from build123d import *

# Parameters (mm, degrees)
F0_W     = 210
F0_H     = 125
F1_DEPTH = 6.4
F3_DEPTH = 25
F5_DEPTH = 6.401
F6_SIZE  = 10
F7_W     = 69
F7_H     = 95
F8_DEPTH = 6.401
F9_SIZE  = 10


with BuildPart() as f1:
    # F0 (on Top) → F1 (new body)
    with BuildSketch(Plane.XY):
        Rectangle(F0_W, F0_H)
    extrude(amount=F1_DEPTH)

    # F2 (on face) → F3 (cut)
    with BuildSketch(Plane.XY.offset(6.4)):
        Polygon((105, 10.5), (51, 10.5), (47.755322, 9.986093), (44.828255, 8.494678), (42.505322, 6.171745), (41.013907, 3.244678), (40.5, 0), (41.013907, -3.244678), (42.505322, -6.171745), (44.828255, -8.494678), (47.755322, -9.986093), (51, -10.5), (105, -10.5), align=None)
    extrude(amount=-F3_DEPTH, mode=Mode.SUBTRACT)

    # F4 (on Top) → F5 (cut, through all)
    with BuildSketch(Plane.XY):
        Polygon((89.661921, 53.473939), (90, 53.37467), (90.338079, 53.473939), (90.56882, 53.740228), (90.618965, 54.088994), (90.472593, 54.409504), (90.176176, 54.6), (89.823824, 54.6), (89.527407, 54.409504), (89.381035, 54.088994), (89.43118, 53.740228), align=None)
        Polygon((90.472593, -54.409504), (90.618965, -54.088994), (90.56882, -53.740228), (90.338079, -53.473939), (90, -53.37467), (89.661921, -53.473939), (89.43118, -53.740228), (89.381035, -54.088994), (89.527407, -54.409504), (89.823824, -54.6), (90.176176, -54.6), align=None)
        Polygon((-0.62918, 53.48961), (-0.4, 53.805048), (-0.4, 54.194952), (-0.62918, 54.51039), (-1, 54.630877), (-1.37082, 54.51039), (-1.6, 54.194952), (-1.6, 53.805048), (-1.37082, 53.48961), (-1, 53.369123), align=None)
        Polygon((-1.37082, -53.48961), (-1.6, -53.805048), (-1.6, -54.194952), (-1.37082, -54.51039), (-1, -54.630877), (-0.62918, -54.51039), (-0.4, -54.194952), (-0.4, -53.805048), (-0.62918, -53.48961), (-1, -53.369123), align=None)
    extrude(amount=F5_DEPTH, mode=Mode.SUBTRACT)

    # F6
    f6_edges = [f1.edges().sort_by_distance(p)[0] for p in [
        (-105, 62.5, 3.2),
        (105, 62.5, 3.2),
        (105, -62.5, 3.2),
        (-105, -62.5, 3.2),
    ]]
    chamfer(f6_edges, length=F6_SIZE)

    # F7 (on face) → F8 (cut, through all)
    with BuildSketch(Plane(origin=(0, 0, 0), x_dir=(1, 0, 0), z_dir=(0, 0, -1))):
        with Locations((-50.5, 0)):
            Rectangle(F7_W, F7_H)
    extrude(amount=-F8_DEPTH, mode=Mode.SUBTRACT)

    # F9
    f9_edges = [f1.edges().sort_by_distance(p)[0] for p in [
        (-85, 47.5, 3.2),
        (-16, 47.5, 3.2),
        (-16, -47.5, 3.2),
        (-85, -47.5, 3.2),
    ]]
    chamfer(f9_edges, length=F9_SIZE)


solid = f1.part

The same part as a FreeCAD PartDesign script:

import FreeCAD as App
import Part
import Sketcher

V = App.Vector
Q = App.Units.Quantity


def edges_at(feature, points):
    """Names of the edges that pass closest to the given points."""
    edges = feature.Shape.Edges
    near = lambda p: min(range(len(edges)), key=lambda i: edges[i].distToShape(Part.Vertex(*p))[0])
    return sorted({f"Edge{near(p) + 1}" for p in points})

doc = App.newDocument("Part")
body = doc.addObject("PartDesign::Body", "Body")

# Sketch on XY plane
sketch1 = body.newObject("Sketcher::SketchObject", "Sketch")
sketch1.AttachmentSupport = (doc.getObject("XY_Plane"), [""])
sketch1.MapMode = "FlatFace"
sketch1.addGeometry(Part.LineSegment(V(-105, 62, 0), V(-105, -62, 0)), False)
sketch1.addGeometry(Part.LineSegment(V(-105, -62, 0), V(105, -62, 0)), False)
sketch1.addGeometry(Part.LineSegment(V(105, -62, 0), V(105, 62, 0)), False)
sketch1.addGeometry(Part.LineSegment(V(105, 62, 0), V(-105, 62, 0)), False)
sketch1.addConstraint(Sketcher.Constraint("Coincident", 0, 2, 1, 1))
sketch1.addConstraint(Sketcher.Constraint("Coincident", 1, 2, 2, 1))
sketch1.addConstraint(Sketcher.Constraint("Coincident", 2, 2, 3, 1))
sketch1.addConstraint(Sketcher.Constraint("Coincident", 3, 2, 0, 1))
sketch1.addConstraint(Sketcher.Constraint("Vertical", 0))
sketch1.addConstraint(Sketcher.Constraint("Horizontal", 1))
sketch1.addConstraint(Sketcher.Constraint("Vertical", 2))
sketch1.addConstraint(Sketcher.Constraint("Horizontal", 3))
sketch1.addConstraint(Sketcher.Constraint("Symmetric", 0, 2, 2, 2, -1, 1))
sketch1.addConstraint(Sketcher.Constraint("DistanceX", 1, 1, 1, 2, 210.0))
sketch1.addConstraint(Sketcher.Constraint("DistanceY", 0, 2, 0, 1, 125.0))
pad1 = body.newObject("PartDesign::Pad", "Pad")
pad1.Profile = sketch1
pad1.Length = 6.4

# Sketch on XY plane
sketch2 = body.newObject("Sketcher::SketchObject", "Sketch001")
sketch2.AttachmentSupport = (doc.getObject("XY_Plane"), [""])
sketch2.MapMode = "FlatFace"
sketch2.AttachmentOffset = App.Placement(V(0, 0, 6.4), App.Rotation())
sketch2.addGeometry(Part.LineSegment(V(105, 10.5, 0), V(51, 10.5, 0)), False)
sketch2.addGeometry(Part.LineSegment(V(51, 10.5, 0), V(47.8, 10, 0)), False)
sketch2.addGeometry(Part.LineSegment(V(47.8, 10, 0), V(44.8, 8.5, 0)), False)
sketch2.addGeometry(Part.LineSegment(V(44.8, 8.5, 0), V(42.5, 6.2, 0)), False)
sketch2.addGeometry(Part.LineSegment(V(42.5, 6.2, 0), V(41, 3.2, 0)), False)
sketch2.addGeometry(Part.LineSegment(V(41, 3.2, 0), V(40.5, 0, 0)), False)
sketch2.addGeometry(Part.LineSegment(V(40.5, 0, 0), V(41, -3.2, 0)), False)
sketch2.addGeometry(Part.LineSegment(V(41, -3.2, 0), V(42.5, -6.2, 0)), False)
sketch2.addGeometry(Part.LineSegment(V(42.5, -6.2, 0), V(44.8, -8.5, 0)), False)
sketch2.addGeometry(Part.LineSegment(V(44.8, -8.5, 0), V(47.8, -10, 0)), False)
sketch2.addGeometry(Part.LineSegment(V(47.8, -10, 0), V(51, -10.5, 0)), False)
sketch2.addGeometry(Part.LineSegment(V(51, -10.5, 0), V(105, -10.5, 0)), False)
sketch2.addGeometry(Part.LineSegment(V(105, -10.5, 0), V(105, 10.5, 0)), False)
sketch2.addConstraint(Sketcher.Constraint("Coincident", 0, 2, 1, 1))
sketch2.addConstraint(Sketcher.Constraint("Coincident", 1, 2, 2, 1))
sketch2.addConstraint(Sketcher.Constraint("Coincident", 2, 2, 3, 1))
sketch2.addConstraint(Sketcher.Constraint("Coincident", 3, 2, 4, 1))
sketch2.addConstraint(Sketcher.Constraint("Coincident", 4, 2, 5, 1))
sketch2.addConstraint(Sketcher.Constraint("Coincident", 5, 2, 6, 1))
sketch2.addConstraint(Sketcher.Constraint("Coincident", 6, 2, 7, 1))
sketch2.addConstraint(Sketcher.Constraint("Coincident", 7, 2, 8, 1))
sketch2.addConstraint(Sketcher.Constraint("Coincident", 8, 2, 9, 1))
sketch2.addConstraint(Sketcher.Constraint("Coincident", 9, 2, 10, 1))
sketch2.addConstraint(Sketcher.Constraint("Coincident", 10, 2, 11, 1))
sketch2.addConstraint(Sketcher.Constraint("Coincident", 11, 2, 12, 1))
sketch2.addConstraint(Sketcher.Constraint("Coincident", 12, 2, 0, 1))
sketch2.addConstraint(Sketcher.Constraint("Horizontal", 0))
sketch2.addConstraint(Sketcher.Constraint("Horizontal", 11))
sketch2.addConstraint(Sketcher.Constraint("Vertical", 12))
sketch2.addConstraint(Sketcher.Constraint("Symmetric", 4, 2, 6, 2, -1))
sketch2.addConstraint(Sketcher.Constraint("Symmetric", 3, 2, 7, 2, -1))
sketch2.addConstraint(Sketcher.Constraint("Symmetric", 2, 2, 8, 2, -1))
sketch2.addConstraint(Sketcher.Constraint("Symmetric", 1, 2, 9, 2, -1))
sketch2.addConstraint(Sketcher.Constraint("Symmetric", 0, 2, 10, 2, -1))
sketch2.addConstraint(Sketcher.Constraint("PointOnObject", 5, 2, -1))
sketch2.addConstraint(Sketcher.Constraint("Perpendicular", 1, 6))
sketch2.addConstraint(Sketcher.Constraint("Perpendicular", 2, 7))
sketch2.addConstraint(Sketcher.Constraint("Perpendicular", 3, 8))
sketch2.addConstraint(Sketcher.Constraint("Equal", 1, 2))
sketch2.addConstraint(Sketcher.Constraint("Equal", 2, 3))
sketch2.addConstraint(Sketcher.Constraint("Equal", 3, 4))
sketch2.addConstraint(Sketcher.Constraint("Equal", 4, 5))
sketch2.addConstraint(Sketcher.Constraint("DistanceX", 0, 2, 0, 1, 54.0))
sketch2.addConstraint(Sketcher.Constraint("DistanceY", 12, 1, 12, 2, 21.0))
sketch2.addConstraint(Sketcher.Constraint("Angle", 1, Q("-170.999992 deg")))
sketch2.addConstraint(Sketcher.Constraint("Angle", 2, Q("-153.000002 deg")))
sketch2.addConstraint(Sketcher.Constraint("DistanceX", -1, 1, 0, 2, 51.0))
pocket1 = body.newObject("PartDesign::Pocket", "Pocket")
pocket1.Profile = sketch2
pocket1.Length = 25

# Sketch on XY plane
sketch3 = body.newObject("Sketcher::SketchObject", "Sketch002")
sketch3.AttachmentSupport = (doc.getObject("XY_Plane"), [""])
sketch3.MapMode = "FlatFace"
sketch3.addGeometry(Part.LineSegment(V(89.66, 53.47, 0), V(90, 53.37, 0)), False)
sketch3.addGeometry(Part.LineSegment(V(90, 53.37, 0), V(90.34, 53.47, 0)), False)
sketch3.addGeometry(Part.LineSegment(V(90.34, 53.47, 0), V(90.57, 53.74, 0)), False)
sketch3.addGeometry(Part.LineSegment(V(90.57, 53.74, 0), V(90.62, 54.09, 0)), False)
sketch3.addGeometry(Part.LineSegment(V(90.62, 54.09, 0), V(90.47, 54.41, 0)), False)
sketch3.addGeometry(Part.LineSegment(V(90.47, 54.41, 0), V(90.18, 54.6, 0)), False)
sketch3.addGeometry(Part.LineSegment(V(90.18, 54.6, 0), V(89.82, 54.6, 0)), False)
sketch3.addGeometry(Part.LineSegment(V(89.82, 54.6, 0), V(89.53, 54.41, 0)), False)
sketch3.addGeometry(Part.LineSegment(V(89.53, 54.41, 0), V(89.38, 54.09, 0)), False)
sketch3.addGeometry(Part.LineSegment(V(89.38, 54.09, 0), V(89.43, 53.74, 0)), False)
sketch3.addGeometry(Part.LineSegment(V(89.43, 53.74, 0), V(89.66, 53.47, 0)), False)
sketch3.addGeometry(Part.LineSegment(V(90.47, -54.41, 0), V(90.62, -54.09, 0)), False)
sketch3.addGeometry(Part.LineSegment(V(90.62, -54.09, 0), V(90.57, -53.74, 0)), False)
sketch3.addGeometry(Part.LineSegment(V(90.57, -53.74, 0), V(90.34, -53.47, 0)), False)
sketch3.addGeometry(Part.LineSegment(V(90.34, -53.47, 0), V(90, -53.37, 0)), False)
sketch3.addGeometry(Part.LineSegment(V(90, -53.37, 0), V(89.66, -53.47, 0)), False)
sketch3.addGeometry(Part.LineSegment(V(89.66, -53.47, 0), V(89.43, -53.74, 0)), False)
sketch3.addGeometry(Part.LineSegment(V(89.43, -53.74, 0), V(89.38, -54.09, 0)), False)
sketch3.addGeometry(Part.LineSegment(V(89.38, -54.09, 0), V(89.53, -54.41, 0)), False)
sketch3.addGeometry(Part.LineSegment(V(89.53, -54.41, 0), V(89.82, -54.6, 0)), False)
sketch3.addGeometry(Part.LineSegment(V(89.82, -54.6, 0), V(90.18, -54.6, 0)), False)
sketch3.addGeometry(Part.LineSegment(V(90.18, -54.6, 0), V(90.47, -54.41, 0)), False)
sketch3.addGeometry(Part.LineSegment(V(-0.63, 53.49, 0), V(-0.4, 53.81, 0)), False)
sketch3.addGeometry(Part.LineSegment(V(-0.4, 53.81, 0), V(-0.4, 54.19, 0)), False)
sketch3.addGeometry(Part.LineSegment(V(-0.4, 54.19, 0), V(-0.63, 54.51, 0)), False)
sketch3.addGeometry(Part.LineSegment(V(-0.63, 54.51, 0), V(-1, 54.63, 0)), False)
sketch3.addGeometry(Part.LineSegment(V(-1, 54.63, 0), V(-1.37, 54.51, 0)), False)
sketch3.addGeometry(Part.LineSegment(V(-1.37, 54.51, 0), V(-1.6, 54.19, 0)), False)
sketch3.addGeometry(Part.LineSegment(V(-1.6, 54.19, 0), V(-1.6, 53.81, 0)), False)
sketch3.addGeometry(Part.LineSegment(V(-1.6, 53.81, 0), V(-1.37, 53.49, 0)), False)
sketch3.addGeometry(Part.LineSegment(V(-1.37, 53.49, 0), V(-1, 53.37, 0)), False)
sketch3.addGeometry(Part.LineSegment(V(-1, 53.37, 0), V(-0.63, 53.49, 0)), False)
sketch3.addGeometry(Part.LineSegment(V(-1.37, -53.49, 0), V(-1.6, -53.81, 0)), False)
sketch3.addGeometry(Part.LineSegment(V(-1.6, -53.81, 0), V(-1.6, -54.19, 0)), False)
sketch3.addGeometry(Part.LineSegment(V(-1.6, -54.19, 0), V(-1.37, -54.51, 0)), False)
sketch3.addGeometry(Part.LineSegment(V(-1.37, -54.51, 0), V(-1, -54.63, 0)), False)
sketch3.addGeometry(Part.LineSegment(V(-1, -54.63, 0), V(-0.63, -54.51, 0)), False)
sketch3.addGeometry(Part.LineSegment(V(-0.63, -54.51, 0), V(-0.4, -54.19, 0)), False)
sketch3.addGeometry(Part.LineSegment(V(-0.4, -54.19, 0), V(-0.4, -53.81, 0)), False)
sketch3.addGeometry(Part.LineSegment(V(-0.4, -53.81, 0), V(-0.63, -53.49, 0)), False)
sketch3.addGeometry(Part.LineSegment(V(-0.63, -53.49, 0), V(-1, -53.37, 0)), False)
sketch3.addGeometry(Part.LineSegment(V(-1, -53.37, 0), V(-1.37, -53.49, 0)), False)
sketch3.addConstraint(Sketcher.Constraint("Coincident", 0, 2, 1, 1))
sketch3.addConstraint(Sketcher.Constraint("Coincident", 1, 2, 2, 1))
sketch3.addConstraint(Sketcher.Constraint("Coincident", 2, 2, 3, 1))
sketch3.addConstraint(Sketcher.Constraint("Coincident", 3, 2, 4, 1))
sketch3.addConstraint(Sketcher.Constraint("Coincident", 4, 2, 5, 1))
sketch3.addConstraint(Sketcher.Constraint("Coincident", 5, 2, 6, 1))
sketch3.addConstraint(Sketcher.Constraint("Coincident", 6, 2, 7, 1))
sketch3.addConstraint(Sketcher.Constraint("Coincident", 7, 2, 8, 1))
sketch3.addConstraint(Sketcher.Constraint("Coincident", 8, 2, 9, 1))
sketch3.addConstraint(Sketcher.Constraint("Coincident", 9, 2, 10, 1))
sketch3.addConstraint(Sketcher.Constraint("Coincident", 10, 2, 0, 1))
sketch3.addConstraint(Sketcher.Constraint("Coincident", 11, 2, 12, 1))
sketch3.addConstraint(Sketcher.Constraint("Coincident", 12, 2, 13, 1))
sketch3.addConstraint(Sketcher.Constraint("Coincident", 13, 2, 14, 1))
sketch3.addConstraint(Sketcher.Constraint("Coincident", 14, 2, 15, 1))
sketch3.addConstraint(Sketcher.Constraint("Coincident", 15, 2, 16, 1))
sketch3.addConstraint(Sketcher.Constraint("Coincident", 16, 2, 17, 1))
sketch3.addConstraint(Sketcher.Constraint("Coincident", 17, 2, 18, 1))
sketch3.addConstraint(Sketcher.Constraint("Coincident", 18, 2, 19, 1))
sketch3.addConstraint(Sketcher.Constraint("Coincident", 19, 2, 20, 1))
sketch3.addConstraint(Sketcher.Constraint("Coincident", 20, 2, 21, 1))
sketch3.addConstraint(Sketcher.Constraint("Coincident", 21, 2, 11, 1))
sketch3.addConstraint(Sketcher.Constraint("Coincident", 22, 2, 23, 1))
sketch3.addConstraint(Sketcher.Constraint("Coincident", 23, 2, 24, 1))
sketch3.addConstraint(Sketcher.Constraint("Coincident", 24, 2, 25, 1))
sketch3.addConstraint(Sketcher.Constraint("Coincident", 25, 2, 26, 1))
sketch3.addConstraint(Sketcher.Constraint("Coincident", 26, 2, 27, 1))
sketch3.addConstraint(Sketcher.Constraint("Coincident", 27, 2, 28, 1))
sketch3.addConstraint(Sketcher.Constraint("Coincident", 28, 2, 29, 1))
sketch3.addConstraint(Sketcher.Constraint("Coincident", 29, 2, 30, 1))
sketch3.addConstraint(Sketcher.Constraint("Coincident", 30, 2, 31, 1))
sketch3.addConstraint(Sketcher.Constraint("Coincident", 31, 2, 22, 1))
sketch3.addConstraint(Sketcher.Constraint("Coincident", 32, 2, 33, 1))
sketch3.addConstraint(Sketcher.Constraint("Coincident", 33, 2, 34, 1))
sketch3.addConstraint(Sketcher.Constraint("Coincident", 34, 2, 35, 1))
sketch3.addConstraint(Sketcher.Constraint("Coincident", 35, 2, 36, 1))
sketch3.addConstraint(Sketcher.Constraint("Coincident", 36, 2, 37, 1))
sketch3.addConstraint(Sketcher.Constraint("Coincident", 37, 2, 38, 1))
sketch3.addConstraint(Sketcher.Constraint("Coincident", 38, 2, 39, 1))
sketch3.addConstraint(Sketcher.Constraint("Coincident", 39, 2, 40, 1))
sketch3.addConstraint(Sketcher.Constraint("Coincident", 40, 2, 41, 1))
sketch3.addConstraint(Sketcher.Constraint("Coincident", 41, 2, 32, 1))
sketch3.addConstraint(Sketcher.Constraint("Horizontal", 6))
sketch3.addConstraint(Sketcher.Constraint("Horizontal", 20))
sketch3.addConstraint(Sketcher.Constraint("Vertical", 23))
sketch3.addConstraint(Sketcher.Constraint("Vertical", 28))
sketch3.addConstraint(Sketcher.Constraint("Vertical", 33))
sketch3.addConstraint(Sketcher.Constraint("Vertical", 38))
sketch3.addConstraint(Sketcher.Constraint("Symmetric", 3, 2, 11, 2, -1))
sketch3.addConstraint(Sketcher.Constraint("Symmetric", 2, 2, 12, 2, -1))
sketch3.addConstraint(Sketcher.Constraint("Symmetric", 1, 2, 13, 2, -1))
sketch3.addConstraint(Sketcher.Constraint("Symmetric", 0, 2, 14, 2, -1))
sketch3.addConstraint(Sketcher.Constraint("Symmetric", 10, 2, 15, 2, -1))
sketch3.addConstraint(Sketcher.Constraint("Symmetric", 9, 2, 16, 2, -1))
sketch3.addConstraint(Sketcher.Constraint("Symmetric", 8, 2, 17, 2, -1))
sketch3.addConstraint(Sketcher.Constraint("Symmetric", 7, 2, 18, 2, -1))
sketch3.addConstraint(Sketcher.Constraint("Symmetric", 6, 2, 19, 2, -1))
sketch3.addConstraint(Sketcher.Constraint("Symmetric", 4, 2, 21, 2, -1))
sketch3.addConstraint(Sketcher.Constraint("Symmetric", 28, 2, 32, 2, -1))
sketch3.addConstraint(Sketcher.Constraint("Symmetric", 26, 2, 34, 2, -1))
sketch3.addConstraint(Sketcher.Constraint("Symmetric", 25, 2, 35, 2, -1))
sketch3.addConstraint(Sketcher.Constraint("Symmetric", 24, 2, 36, 2, -1))
sketch3.addConstraint(Sketcher.Constraint("Symmetric", 23, 2, 37, 2, -1))
sketch3.addConstraint(Sketcher.Constraint("Symmetric", 31, 2, 39, 2, -1))
sketch3.addConstraint(Sketcher.Constraint("Symmetric", 30, 2, 40, 2, -1))
sketch3.addConstraint(Sketcher.Constraint("Symmetric", 29, 2, 41, 2, -1))
sketch3.addConstraint(Sketcher.Constraint("Parallel", 8, 11))
sketch3.addConstraint(Sketcher.Constraint("Parallel", 9, 12))
sketch3.addConstraint(Sketcher.Constraint("Parallel", 10, 13))
sketch3.addConstraint(Sketcher.Constraint("Parallel", 0, 14))
sketch3.addConstraint(Sketcher.Constraint("Parallel", 5, 19))
sketch3.addConstraint(Sketcher.Constraint("Parallel", 7, 21))
sketch3.addConstraint(Sketcher.Constraint("Parallel", 22, 27))
sketch3.addConstraint(Sketcher.Constraint("Parallel", 24, 29))
sketch3.addConstraint(Sketcher.Constraint("Parallel", 25, 30))
sketch3.addConstraint(Sketcher.Constraint("Parallel", 26, 31))
sketch3.addConstraint(Sketcher.Constraint("Parallel", 27, 32))
sketch3.addConstraint(Sketcher.Constraint("Parallel", 29, 34))
sketch3.addConstraint(Sketcher.Constraint("Parallel", 30, 35))
sketch3.addConstraint(Sketcher.Constraint("Parallel", 34, 39))
sketch3.addConstraint(Sketcher.Constraint("Horizontal", 4, 2, 7, 2))
sketch3.addConstraint(Sketcher.Constraint("Horizontal", 3, 2, 8, 2))
sketch3.addConstraint(Sketcher.Constraint("Horizontal", 2, 2, 9, 2))
sketch3.addConstraint(Sketcher.Constraint("Horizontal", 1, 2, 10, 2))
sketch3.addConstraint(Sketcher.Constraint("Horizontal", 24, 2, 26, 2))
sketch3.addConstraint(Sketcher.Constraint("Horizontal", 23, 2, 27, 2))
sketch3.addConstraint(Sketcher.Constraint("Horizontal", 22, 2, 28, 2))
sketch3.addConstraint(Sketcher.Constraint("Horizontal", 29, 2, 31, 2))
sketch3.addConstraint(Sketcher.Constraint("Vertical", 26, 2, 29, 2))
sketch3.addConstraint(Sketcher.Constraint("Equal", 1, 2))
sketch3.addConstraint(Sketcher.Constraint("Equal", 2, 3))
sketch3.addConstraint(Sketcher.Constraint("Equal", 3, 4))
sketch3.addConstraint(Sketcher.Constraint("Equal", 4, 5))
sketch3.addConstraint(Sketcher.Constraint("Equal", 24, 25))
sketch3.addConstraint(Sketcher.Constraint("DistanceX", -1, 1, 0, 2, 90.0))
sketch3.addConstraint(Sketcher.Constraint("DistanceX", 25, 2, -1, 1, 1.0))
sketch3.addConstraint(Sketcher.Constraint("DistanceY", -1, 1, 5, 2, 54.6))
sketch3.addConstraint(Sketcher.Constraint("DistanceX", 22, 2, -1, 1, 0.4))
sketch3.addConstraint(Sketcher.Constraint("DistanceX", 34, 2, 16, 2, 90.802))
sketch3.addConstraint(Sketcher.Constraint("DistanceX", 6, 2, 6, 1, 0.352352))
sketch3.addConstraint(Sketcher.Constraint("DistanceX", 9, 2, 1, 2, 0.906899))
sketch3.addConstraint(Sketcher.Constraint("DistanceY", 12, 2, 0, 2, 107.114898))
sketch3.addConstraint(Sketcher.Constraint("Distance", 0, 0.352352))
sketch3.addConstraint(Sketcher.Constraint("DistanceY", 23, 1, 23, 2, 0.389904))
sketch3.addConstraint(Sketcher.Constraint("DistanceY", -1, 1, 0, 2, 53.37467))
sketch3.addConstraint(Sketcher.Constraint("DistanceY", -1, 1, 24, 2, 54.51039))
sketch3.addConstraint(Sketcher.Constraint("DistanceY", -1, 1, 29, 2, 53.48961))
sketch3.addConstraint(Sketcher.Constraint("DistanceX", 4, 2, 3, 2, 0.146372))
pocket2 = body.newObject("PartDesign::Pocket", "Pocket001")
pocket2.Profile = sketch3
pocket2.Type = "ThroughAll"
pocket2.Reversed = True
doc.recompute()

chamfer = body.newObject("PartDesign::Chamfer", "Chamfer")
chamfer.Base = (pocket2, edges_at(pocket2, [
    (-105, 62.5, 3.2),
    (105, 62.5, 3.2),
    (105, -62.5, 3.2),
    (-105, -62.5, 3.2),
]))
chamfer.Size = 10

# Sketch on XY plane
sketch4 = body.newObject("Sketcher::SketchObject", "Sketch003")
sketch4.AttachmentSupport = (doc.getObject("XY_Plane"), [""])
sketch4.MapMode = "FlatFace"
sketch4.addGeometry(Part.LineSegment(V(-85, -48, 0), V(-85, 48, 0)), False)
sketch4.addGeometry(Part.LineSegment(V(-85, 48, 0), V(-16, 48, 0)), False)
sketch4.addGeometry(Part.LineSegment(V(-16, 48, 0), V(-16, -48, 0)), False)
sketch4.addGeometry(Part.LineSegment(V(-16, -48, 0), V(-85, -48, 0)), False)
sketch4.addConstraint(Sketcher.Constraint("Coincident", 0, 2, 1, 1))
sketch4.addConstraint(Sketcher.Constraint("Coincident", 1, 2, 2, 1))
sketch4.addConstraint(Sketcher.Constraint("Coincident", 2, 2, 3, 1))
sketch4.addConstraint(Sketcher.Constraint("Coincident", 3, 2, 0, 1))
sketch4.addConstraint(Sketcher.Constraint("Vertical", 0))
sketch4.addConstraint(Sketcher.Constraint("Horizontal", 1))
sketch4.addConstraint(Sketcher.Constraint("Vertical", 2))
sketch4.addConstraint(Sketcher.Constraint("Horizontal", 3))
sketch4.addConstraint(Sketcher.Constraint("DistanceX", 1, 1, 1, 2, 69.0))
sketch4.addConstraint(Sketcher.Constraint("DistanceY", 0, 1, 0, 2, 95.0))
sketch4.addConstraint(Sketcher.Constraint("DistanceX", 0, 2, -1, 1, 85.0))
sketch4.addConstraint(Sketcher.Constraint("DistanceY", -1, 1, 0, 2, 47.5))
pocket3 = body.newObject("PartDesign::Pocket", "Pocket002")
pocket3.Profile = sketch4
pocket3.Type = "ThroughAll"
pocket3.Reversed = True
doc.recompute()

chamfer2 = body.newObject("PartDesign::Chamfer", "Chamfer001")
chamfer2.Base = (pocket3, edges_at(pocket3, [
    (-85, 47.5, 3.2),
    (-16, 47.5, 3.2),
    (-16, -47.5, 3.2),
    (-85, -47.5, 3.2),
]))
chamfer2.Size = 10

doc.recompute()
